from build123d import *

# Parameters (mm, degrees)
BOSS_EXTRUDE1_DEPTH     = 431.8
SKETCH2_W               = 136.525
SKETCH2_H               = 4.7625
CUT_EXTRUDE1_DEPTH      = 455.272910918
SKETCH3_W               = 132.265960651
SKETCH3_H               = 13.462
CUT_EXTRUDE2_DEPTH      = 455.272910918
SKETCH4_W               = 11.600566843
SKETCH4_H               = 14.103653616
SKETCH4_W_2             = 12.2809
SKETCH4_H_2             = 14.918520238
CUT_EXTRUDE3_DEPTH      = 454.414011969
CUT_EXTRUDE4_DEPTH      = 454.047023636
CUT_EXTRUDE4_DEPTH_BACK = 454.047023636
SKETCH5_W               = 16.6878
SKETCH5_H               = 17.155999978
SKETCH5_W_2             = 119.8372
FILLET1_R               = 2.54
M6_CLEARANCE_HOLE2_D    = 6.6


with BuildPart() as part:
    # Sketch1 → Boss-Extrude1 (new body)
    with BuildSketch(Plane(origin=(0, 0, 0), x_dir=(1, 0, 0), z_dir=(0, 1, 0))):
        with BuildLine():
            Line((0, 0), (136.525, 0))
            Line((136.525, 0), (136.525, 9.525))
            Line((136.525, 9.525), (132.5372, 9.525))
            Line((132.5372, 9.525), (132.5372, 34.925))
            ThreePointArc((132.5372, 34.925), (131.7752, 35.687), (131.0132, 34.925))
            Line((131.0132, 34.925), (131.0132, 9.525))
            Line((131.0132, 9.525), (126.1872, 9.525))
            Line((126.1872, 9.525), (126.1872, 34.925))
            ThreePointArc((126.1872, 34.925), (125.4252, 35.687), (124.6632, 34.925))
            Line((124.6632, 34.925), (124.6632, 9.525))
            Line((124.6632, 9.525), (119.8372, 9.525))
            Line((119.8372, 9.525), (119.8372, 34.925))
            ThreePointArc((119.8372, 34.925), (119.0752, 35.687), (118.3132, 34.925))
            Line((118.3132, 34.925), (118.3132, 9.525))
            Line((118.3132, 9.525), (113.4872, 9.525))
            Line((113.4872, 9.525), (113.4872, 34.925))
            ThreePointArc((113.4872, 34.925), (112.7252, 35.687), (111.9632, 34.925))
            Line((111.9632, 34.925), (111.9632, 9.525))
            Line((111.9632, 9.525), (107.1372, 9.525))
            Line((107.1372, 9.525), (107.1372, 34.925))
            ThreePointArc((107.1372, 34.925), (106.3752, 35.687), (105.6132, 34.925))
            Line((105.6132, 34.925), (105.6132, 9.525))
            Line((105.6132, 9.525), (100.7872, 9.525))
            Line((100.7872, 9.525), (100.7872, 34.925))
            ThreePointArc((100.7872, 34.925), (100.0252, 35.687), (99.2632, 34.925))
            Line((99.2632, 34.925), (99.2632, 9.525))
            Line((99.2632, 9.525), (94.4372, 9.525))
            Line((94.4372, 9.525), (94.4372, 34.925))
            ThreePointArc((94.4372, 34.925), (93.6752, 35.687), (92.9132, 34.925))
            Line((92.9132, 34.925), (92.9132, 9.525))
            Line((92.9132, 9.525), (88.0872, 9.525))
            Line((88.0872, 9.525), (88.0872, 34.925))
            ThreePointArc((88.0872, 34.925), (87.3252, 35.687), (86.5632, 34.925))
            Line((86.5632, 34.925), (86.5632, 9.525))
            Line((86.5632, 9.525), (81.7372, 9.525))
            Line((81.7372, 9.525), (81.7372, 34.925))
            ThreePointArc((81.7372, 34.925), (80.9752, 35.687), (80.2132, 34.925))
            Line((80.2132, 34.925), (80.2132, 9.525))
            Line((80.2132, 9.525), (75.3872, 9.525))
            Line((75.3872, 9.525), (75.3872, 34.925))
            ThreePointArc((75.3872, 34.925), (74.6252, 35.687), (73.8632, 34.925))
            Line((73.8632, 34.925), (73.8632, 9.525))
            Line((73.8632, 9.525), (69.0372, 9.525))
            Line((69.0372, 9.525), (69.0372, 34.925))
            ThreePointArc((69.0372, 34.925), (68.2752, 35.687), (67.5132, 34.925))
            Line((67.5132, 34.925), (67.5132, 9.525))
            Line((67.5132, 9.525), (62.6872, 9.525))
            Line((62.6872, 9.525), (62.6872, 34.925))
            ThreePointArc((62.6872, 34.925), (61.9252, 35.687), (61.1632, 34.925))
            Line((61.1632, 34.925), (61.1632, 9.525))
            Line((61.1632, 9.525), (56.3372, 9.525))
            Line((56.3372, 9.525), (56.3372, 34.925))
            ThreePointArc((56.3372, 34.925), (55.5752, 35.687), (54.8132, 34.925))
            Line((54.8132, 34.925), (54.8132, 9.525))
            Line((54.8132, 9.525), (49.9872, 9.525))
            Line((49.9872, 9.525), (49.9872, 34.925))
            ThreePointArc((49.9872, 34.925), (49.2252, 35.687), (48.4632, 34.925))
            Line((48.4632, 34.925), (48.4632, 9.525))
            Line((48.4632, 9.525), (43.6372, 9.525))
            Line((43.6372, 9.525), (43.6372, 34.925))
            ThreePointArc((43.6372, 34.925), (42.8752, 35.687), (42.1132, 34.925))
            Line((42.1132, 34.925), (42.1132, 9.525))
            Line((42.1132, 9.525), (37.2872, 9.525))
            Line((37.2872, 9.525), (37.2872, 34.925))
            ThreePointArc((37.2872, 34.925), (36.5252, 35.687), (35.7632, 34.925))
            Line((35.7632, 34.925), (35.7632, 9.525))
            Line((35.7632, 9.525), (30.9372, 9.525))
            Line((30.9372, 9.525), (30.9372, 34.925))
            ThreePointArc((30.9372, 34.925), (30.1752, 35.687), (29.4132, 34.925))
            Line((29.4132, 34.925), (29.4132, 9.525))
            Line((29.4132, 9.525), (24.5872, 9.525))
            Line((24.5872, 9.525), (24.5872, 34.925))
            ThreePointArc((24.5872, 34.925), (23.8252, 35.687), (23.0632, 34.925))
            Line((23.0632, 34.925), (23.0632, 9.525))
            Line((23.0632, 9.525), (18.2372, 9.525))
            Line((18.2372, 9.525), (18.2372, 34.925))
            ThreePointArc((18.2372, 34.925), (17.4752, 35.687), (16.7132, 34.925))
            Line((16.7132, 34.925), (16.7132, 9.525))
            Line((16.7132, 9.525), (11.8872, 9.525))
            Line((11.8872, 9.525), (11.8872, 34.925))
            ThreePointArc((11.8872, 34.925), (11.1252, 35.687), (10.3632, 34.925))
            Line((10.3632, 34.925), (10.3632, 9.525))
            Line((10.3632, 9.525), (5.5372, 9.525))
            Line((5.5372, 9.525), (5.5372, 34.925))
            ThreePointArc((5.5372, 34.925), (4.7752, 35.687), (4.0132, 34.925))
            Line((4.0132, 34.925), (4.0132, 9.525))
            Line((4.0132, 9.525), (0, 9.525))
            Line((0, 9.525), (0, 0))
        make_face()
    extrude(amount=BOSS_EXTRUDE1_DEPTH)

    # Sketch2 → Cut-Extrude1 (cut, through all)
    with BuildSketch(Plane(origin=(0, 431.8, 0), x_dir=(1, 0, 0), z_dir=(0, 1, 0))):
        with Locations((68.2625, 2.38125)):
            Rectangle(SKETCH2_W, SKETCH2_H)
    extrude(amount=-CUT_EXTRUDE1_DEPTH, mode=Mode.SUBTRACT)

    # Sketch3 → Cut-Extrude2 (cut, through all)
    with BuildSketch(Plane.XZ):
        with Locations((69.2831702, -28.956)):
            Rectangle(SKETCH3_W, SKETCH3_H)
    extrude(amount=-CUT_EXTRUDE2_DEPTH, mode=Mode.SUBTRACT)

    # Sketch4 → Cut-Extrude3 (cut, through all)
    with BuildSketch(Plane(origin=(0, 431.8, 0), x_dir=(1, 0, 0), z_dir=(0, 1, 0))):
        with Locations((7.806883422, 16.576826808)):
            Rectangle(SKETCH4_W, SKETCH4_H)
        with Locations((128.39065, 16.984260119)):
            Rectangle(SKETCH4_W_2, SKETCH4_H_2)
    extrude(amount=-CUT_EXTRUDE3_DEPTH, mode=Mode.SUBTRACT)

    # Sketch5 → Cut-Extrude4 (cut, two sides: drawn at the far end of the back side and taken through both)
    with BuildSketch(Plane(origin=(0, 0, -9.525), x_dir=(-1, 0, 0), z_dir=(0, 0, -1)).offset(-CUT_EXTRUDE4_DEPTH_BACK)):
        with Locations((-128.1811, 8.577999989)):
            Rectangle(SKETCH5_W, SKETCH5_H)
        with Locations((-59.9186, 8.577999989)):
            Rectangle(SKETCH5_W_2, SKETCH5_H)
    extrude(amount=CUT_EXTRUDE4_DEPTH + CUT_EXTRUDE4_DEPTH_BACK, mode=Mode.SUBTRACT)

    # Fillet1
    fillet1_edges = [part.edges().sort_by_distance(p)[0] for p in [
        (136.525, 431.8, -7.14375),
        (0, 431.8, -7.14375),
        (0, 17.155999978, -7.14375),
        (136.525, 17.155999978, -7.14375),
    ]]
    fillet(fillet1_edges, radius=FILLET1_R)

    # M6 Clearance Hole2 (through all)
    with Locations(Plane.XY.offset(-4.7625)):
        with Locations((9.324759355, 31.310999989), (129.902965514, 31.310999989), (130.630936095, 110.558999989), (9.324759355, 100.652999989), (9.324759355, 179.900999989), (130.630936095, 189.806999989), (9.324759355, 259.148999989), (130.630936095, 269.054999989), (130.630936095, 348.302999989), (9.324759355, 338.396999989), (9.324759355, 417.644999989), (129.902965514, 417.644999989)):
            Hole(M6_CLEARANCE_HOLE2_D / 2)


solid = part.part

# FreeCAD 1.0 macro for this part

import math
import FreeCAD as App
import Part
import Sketcher

V = App.Vector
Q = App.Units.Quantity


def edges_at(feature, points):
    """Names of the edges that pass closest to the given points."""
    edges = feature.Shape.Edges
    near = lambda p: min(range(len(edges)), key=lambda i: edges[i].distToShape(Part.Vertex(*p))[0])
    return sorted({f"Edge{near(p) + 1}" for p in points})

doc = App.newDocument("Part")
params = doc.addObject("Spreadsheet::Sheet", "Params")
for row, (alias, value) in enumerate([
    ("sketch1_height", "1 in"),
    ("sketch1_radius", "0.03 in"),
    ("sketch1_width", "0.19 in"),
    ("sketch1_width2", "5.375 in"),
    ("sketch1_width3", "0.157 in"),
    ("pad1_length", "17 in"),
    ("sketch2_width", "5.375 in"),
    ("sketch2_height", "0.1875 in"),
    ("sketch3_height", "0.53 in"),
    ("sketch5_width", "5.375 in"),
    ("fillet_radius", "0.1 in"),
    ("hole_diameter", "6.6 mm"),
], start=1):
    params.set(f"A{row}", alias)
    params.set(f"B{row}", "=" + value)
    params.setAlias(f"B{row}", alias)

body = doc.addObject("PartDesign::Body", "Body")

# Sketch on XZ plane
sketch1 = body.newObject("Sketcher::SketchObject", "Sketch")
sketch1.AttachmentSupport = (doc.getObject("XZ_Plane"), [""])
sketch1.MapMode = "FlatFace"
sketch1.addGeometry(Part.LineSegment(V(0, 0, 0), V(136.5, 0, 0)), False)
sketch1.addGeometry(Part.LineSegment(V(136.5, 0, 0), V(136.5, -9.5, 0)), False)
sketch1.addGeometry(Part.LineSegment(V(136.5, -9.5, 0), V(132.5, -9.5, 0)), False)
sketch1.addGeometry(Part.LineSegment(V(132.5, -9.5, 0), V(132.5, -34.9, 0)), False)
sketch1.addGeometry(Part.ArcOfCircle(Part.Circle(V(131.8, -34.9, 0), V(0, 0, 1), 0.8), math.radians(180), math.radians(360)), False)
sketch1.addGeometry(Part.LineSegment(V(131, -34.9, 0), V(131, -9.5, 0)), False)
sketch1.addGeometry(Part.LineSegment(V(131, -9.5, 0), V(126.2, -9.5, 0)), False)
sketch1.addGeometry(Part.LineSegment(V(126.2, -9.5, 0), V(126.2, -34.9, 0)), False)
sketch1.addGeometry(Part.ArcOfCircle(Part.Circle(V(125.4, -34.9, 0), V(0, 0, 1), 0.8), math.radians(180), math.radians(360)), False)
sketch1.addGeometry(Part.LineSegment(V(124.7, -34.9, 0), V(124.7, -9.5, 0)), False)
sketch1.addGeometry(Part.LineSegment(V(124.7, -9.5, 0), V(119.8, -9.5, 0)), False)
sketch1.addGeometry(Part.LineSegment(V(119.8, -9.5, 0), V(119.8, -34.9, 0)), False)
sketch1.addGeometry(Part.ArcOfCircle(Part.Circle(V(119.1, -34.9, 0), V(0, 0, 1), 0.8), math.radians(180), math.radians(360)), False)
sketch1.addGeometry(Part.LineSegment(V(118.3, -34.9, 0), V(118.3, -9.5, 0)), False)
sketch1.addGeometry(Part.LineSegment(V(118.3, -9.5, 0), V(113.5, -9.5, 0)), False)
sketch1.addGeometry(Part.LineSegment(V(113.5, -9.5, 0), V(113.5, -34.9, 0)), False)
sketch1.addGeometry(Part.ArcOfCircle(Part.Circle(V(112.7, -34.9, 0), V(0, 0, 1), 0.8), math.radians(180), math.radians(360)), False)
sketch1.addGeometry(Part.LineSegment(V(112, -34.9, 0), V(112, -9.5, 0)), False)
sketch1.addGeometry(Part.LineSegment(V(112, -9.5, 0), V(107.1, -9.5, 0)), False)
sketch1.addGeometry(Part.LineSegment(V(107.1, -9.5, 0), V(107.1, -34.9, 0)), False)
sketch1.addGeometry(Part.ArcOfCircle(Part.Circle(V(106.4, -34.9, 0), V(0, 0, 1), 0.8), math.radians(180), math.radians(360)), False)
sketch1.addGeometry(Part.LineSegment(V(105.6, -34.9, 0), V(105.6, -9.5, 0)), False)
sketch1.addGeometry(Part.LineSegment(V(105.6, -9.5, 0), V(100.8, -9.5, 0)), False)
sketch1.addGeometry(Part.LineSegment(V(100.8, -9.5, 0), V(100.8, -34.9, 0)), False)
sketch1.addGeometry(Part.ArcOfCircle(Part.Circle(V(100, -34.9, 0), V(0, 0, 1), 0.8), math.radians(180), math.radians(360)), False)
sketch1.addGeometry(Part.LineSegment(V(99.3, -34.9, 0), V(99.3, -9.5, 0)), False)
sketch1.addGeometry(Part.LineSegment(V(99.3, -9.5, 0), V(94.4, -9.5, 0)), False)
sketch1.addGeometry(Part.LineSegment(V(94.4, -9.5, 0), V(94.4, -34.9, 0)), False)
sketch1.addGeometry(Part.ArcOfCircle(Part.Circle(V(93.7, -34.9, 0), V(0, 0, 1), 0.8), math.radians(180), math.radians(360)), False)
sketch1.addGeometry(Part.LineSegment(V(92.9, -34.9, 0), V(92.9, -9.5, 0)), False)
sketch1.addGeometry(Part.LineSegment(V(92.9, -9.5, 0), V(88.1, -9.5, 0)), False)
sketch1.addGeometry(Part.LineSegment(V(88.1, -9.5, 0), V(88.1, -34.9, 0)), False)
sketch1.addGeometry(Part.ArcOfCircle(Part.Circle(V(87.3, -34.9, 0), V(0, 0, 1), 0.8), math.radians(180), math.radians(360)), False)
sketch1.addGeometry(Part.LineSegment(V(86.6, -34.9, 0), V(86.6, -9.5, 0)), False)
sketch1.addGeometry(Part.LineSegment(V(86.6, -9.5, 0), V(81.7, -9.5, 0)), False)
sketch1.addGeometry(Part.LineSegment(V(81.7, -9.5, 0), V(81.7, -34.9, 0)), False)
sketch1.addGeometry(Part.ArcOfCircle(Part.Circle(V(81, -34.9, 0), V(0, 0, 1), 0.8), math.radians(180), math.radians(360)), False)
sketch1.addGeometry(Part.LineSegment(V(80.2, -34.9, 0), V(80.2, -9.5, 0)), False)
sketch1.addGeometry(Part.LineSegment(V(80.2, -9.5, 0), V(75.4, -9.5, 0)), False)
sketch1.addGeometry(Part.LineSegment(V(75.4, -9.5, 0), V(75.4, -34.9, 0)), False)
sketch1.addGeometry(Part.ArcOfCircle(Part.Circle(V(74.6, -34.9, 0), V(0, 0, 1), 0.8), math.radians(180), math.radians(360)), False)
sketch1.addGeometry(Part.LineSegment(V(73.9, -34.9, 0), V(73.9, -9.5, 0)), False)
sketch1.addGeometry(Part.LineSegment(V(73.9, -9.5, 0), V(69, -9.5, 0)), False)
sketch1.addGeometry(Part.LineSegment(V(69, -9.5, 0), V(69, -34.9, 0)), False)
sketch1.addGeometry(Part.ArcOfCircle(Part.Circle(V(68.3, -34.9, 0), V(0, 0, 1), 0.8), math.radians(180), math.radians(360)), False)
sketch1.addGeometry(Part.LineSegment(V(67.5, -34.9, 0), V(67.5, -9.5, 0)), False)
sketch1.addGeometry(Part.LineSegment(V(67.5, -9.5, 0), V(62.7, -9.5, 0)), False)
sketch1.addGeometry(Part.LineSegment(V(62.7, -9.5, 0), V(62.7, -34.9, 0)), False)
sketch1.addGeometry(Part.ArcOfCircle(Part.Circle(V(61.9, -34.9, 0), V(0, 0, 1), 0.8), math.radians(180), math.radians(360)), False)
sketch1.addGeometry(Part.LineSegment(V(61.2, -34.9, 0), V(61.2, -9.5, 0)), False)
sketch1.addGeometry(Part.LineSegment(V(61.2, -9.5, 0), V(56.3, -9.5, 0)), False)
sketch1.addGeometry(Part.LineSegment(V(56.3, -9.5, 0), V(56.3, -34.9, 0)), False)
sketch1.addGeometry(Part.ArcOfCircle(Part.Circle(V(55.6, -34.9, 0), V(0, 0, 1), 0.8), math.radians(180), math.radians(360)), False)
sketch1.addGeometry(Part.LineSegment(V(54.8, -34.9, 0), V(54.8, -9.5, 0)), False)
sketch1.addGeometry(Part.LineSegment(V(54.8, -9.5, 0), V(50, -9.5, 0)), False)
sketch1.addGeometry(Part.LineSegment(V(50, -9.5, 0), V(50, -34.9, 0)), False)
sketch1.addGeometry(Part.ArcOfCircle(Part.Circle(V(49.2, -34.9, 0), V(0, 0, 1), 0.8), math.radians(180), math.radians(360)), False)
sketch1.addGeometry(Part.LineSegment(V(48.5, -34.9, 0), V(48.5, -9.5, 0)), False)
sketch1.addGeometry(Part.LineSegment(V(48.5, -9.5, 0), V(43.6, -9.5, 0)), False)
sketch1.addGeometry(Part.LineSegment(V(43.6, -9.5, 0), V(43.6, -34.9, 0)), False)
sketch1.addGeometry(Part.ArcOfCircle(Part.Circle(V(42.9, -34.9, 0), V(0, 0, 1), 0.8), math.radians(180), math.radians(360)), False)
sketch1.addGeometry(Part.LineSegment(V(42.1, -34.9, 0), V(42.1, -9.5, 0)), False)
sketch1.addGeometry(Part.LineSegment(V(42.1, -9.5, 0), V(37.3, -9.5, 0)), False)
sketch1.addGeometry(Part.LineSegment(V(37.3, -9.5, 0), V(37.3, -34.9, 0)), False)
sketch1.addGeometry(Part.ArcOfCircle(Part.Circle(V(36.5, -34.9, 0), V(0, 0, 1), 0.8), math.radians(180), math.radians(360)), False)
sketch1.addGeometry(Part.LineSegment(V(35.8, -34.9, 0), V(35.8, -9.5, 0)), False)
sketch1.addGeometry(Part.LineSegment(V(35.8, -9.5, 0), V(30.9, -9.5, 0)), False)
sketch1.addGeometry(Part.LineSegment(V(30.9, -9.5, 0), V(30.9, -34.9, 0)), False)
sketch1.addGeometry(Part.ArcOfCircle(Part.Circle(V(30.2, -34.9, 0), V(0, 0, 1), 0.8), math.radians(180), math.radians(360)), False)
sketch1.addGeometry(Part.LineSegment(V(29.4, -34.9, 0), V(29.4, -9.5, 0)), False)
sketch1.addGeometry(Part.LineSegment(V(29.4, -9.5, 0), V(24.6, -9.5, 0)), False)
sketch1.addGeometry(Part.LineSegment(V(24.6, -9.5, 0), V(24.6, -34.9, 0)), False)
sketch1.addGeometry(Part.ArcOfCircle(Part.Circle(V(23.8, -34.9, 0), V(0, 0, 1), 0.8), math.radians(180), math.radians(360)), False)
sketch1.addGeometry(Part.LineSegment(V(23.1, -34.9, 0), V(23.1, -9.5, 0)), False)
sketch1.addGeometry(Part.LineSegment(V(23.1, -9.5, 0), V(18.2, -9.5, 0)), False)
sketch1.addGeometry(Part.LineSegment(V(18.2, -9.5, 0), V(18.2, -34.9, 0)), False)
sketch1.addGeometry(Part.ArcOfCircle(Part.Circle(V(17.5, -34.9, 0), V(0, 0, 1), 0.8), math.radians(180), math.radians(360)), False)
sketch1.addGeometry(Part.LineSegment(V(16.7, -34.9, 0), V(16.7, -9.5, 0)), False)
sketch1.addGeometry(Part.LineSegment(V(16.7, -9.5, 0), V(11.9, -9.5, 0)), False)
sketch1.addGeometry(Part.LineSegment(V(11.9, -9.5, 0), V(11.9, -34.9, 0)), False)
sketch1.addGeometry(Part.ArcOfCircle(Part.Circle(V(11.1, -34.9, 0), V(0, 0, 1), 0.8), math.radians(180), math.radians(360)), False)
sketch1.addGeometry(Part.LineSegment(V(10.4, -34.9, 0), V(10.4, -9.5, 0)), False)
sketch1.addGeometry(Part.LineSegment(V(10.4, -9.5, 0), V(5.5, -9.5, 0)), False)
sketch1.addGeometry(Part.LineSegment(V(5.5, -9.5, 0), V(5.5, -34.9, 0)), False)
sketch1.addGeometry(Part.ArcOfCircle(Part.Circle(V(4.8, -34.9, 0), V(0, 0, 1), 0.8), math.radians(180), math.radians(360)), False)
sketch1.addGeometry(Part.LineSegment(V(4, -34.9, 0), V(4, -9.5, 0)), False)
sketch1.addGeometry(Part.LineSegment(V(4, -9.5, 0), V(0, -9.5, 0)), False)
sketch1.addGeometry(Part.LineSegment(V(0, -9.5, 0), V(0, 0, 0)), False)
sketch1.addConstraint(Sketcher.Constraint("Coincident", 0, 2, 1, 1))
sketch1.addConstraint(Sketcher.Constraint("Coincident", 1, 2, 2, 1))
sketch1.addConstraint(Sketcher.Constraint("Coincident", 2, 2, 3, 1))
sketch1.addConstraint(Sketcher.Constraint("Tangent", 3, 2, 4, 2))
sketch1.addConstraint(Sketcher.Constraint("Tangent", 4, 1, 5, 1))
sketch1.addConstraint(Sketcher.Constraint("Coincident", 5, 2, 6, 1))
sketch1.addConstraint(Sketcher.Constraint("Coincident", 6, 2, 7, 1))
sketch1.addConstraint(Sketcher.Constraint("Tangent", 7, 2, 8, 2))
sketch1.addConstraint(Sketcher.Constraint("Tangent", 8, 1, 9, 1))
sketch1.addConstraint(Sketcher.Constraint("Coincident", 9, 2, 10, 1))
sketch1.addConstraint(Sketcher.Constraint("Coincident", 10, 2, 11, 1))
sketch1.addConstraint(Sketcher.Constraint("Tangent", 11, 2, 12, 2))
sketch1.addConstraint(Sketcher.Constraint("Tangent", 12, 1, 13, 1))
sketch1.addConstraint(Sketcher.Constraint("Coincident", 13, 2, 14, 1))
sketch1.addConstraint(Sketcher.Constraint("Coincident", 14, 2, 15, 1))
sketch1.addConstraint(Sketcher.Constraint("Tangent", 15, 2, 16, 2))
sketch1.addConstraint(Sketcher.Constraint("Tangent", 16, 1, 17, 1))
sketch1.addConstraint(Sketcher.Constraint("Coincident", 17, 2, 18, 1))
sketch1.addConstraint(Sketcher.Constraint("Coincident", 18, 2, 19, 1))
sketch1.addConstraint(Sketcher.Constraint("Tangent", 19, 2, 20, 2))
sketch1.addConstraint(Sketcher.Constraint("Tangent", 20, 1, 21, 1))
sketch1.addConstraint(Sketcher.Constraint("Coincident", 21, 2, 22, 1))
sketch1.addConstraint(Sketcher.Constraint("Coincident", 22, 2, 23, 1))
sketch1.addConstraint(Sketcher.Constraint("Tangent", 23, 2, 24, 2))
sketch1.addConstraint(Sketcher.Constraint("Tangent", 24, 1, 25, 1))
sketch1.addConstraint(Sketcher.Constraint("Coincident", 25, 2, 26, 1))
sketch1.addConstraint(Sketcher.Constraint("Coincident", 26, 2, 27, 1))
sketch1.addConstraint(Sketcher.Constraint("Tangent", 27, 2, 28, 2))
sketch1.addConstraint(Sketcher.Constraint("Tangent", 28, 1, 29, 1))
sketch1.addConstraint(Sketcher.Constraint("Coincident", 29, 2, 30, 1))
sketch1.addConstraint(Sketcher.Constraint("Coincident", 30, 2, 31, 1))
sketch1.addConstraint(Sketcher.Constraint("Tangent", 31, 2, 32, 2))
sketch1.addConstraint(Sketcher.Constraint("Tangent", 32, 1, 33, 1))
sketch1.addConstraint(Sketcher.Constraint("Coincident", 33, 2, 34, 1))
sketch1.addConstraint(Sketcher.Constraint("Coincident", 34, 2, 35, 1))
sketch1.addConstraint(Sketcher.Constraint("Tangent", 35, 2, 36, 2))
sketch1.addConstraint(Sketcher.Constraint("Tangent", 36, 1, 37, 1))
sketch1.addConstraint(Sketcher.Constraint("Coincident", 37, 2, 38, 1))
sketch1.addConstraint(Sketcher.Constraint("Coincident", 38, 2, 39, 1))
sketch1.addConstraint(Sketcher.Constraint("Tangent", 39, 2, 40, 2))
sketch1.addConstraint(Sketcher.Constraint("Tangent", 40, 1, 41, 1))
sketch1.addConstraint(Sketcher.Constraint("Coincident", 41, 2, 42, 1))
sketch1.addConstraint(Sketcher.Constraint("Coincident", 42, 2, 43, 1))
sketch1.addConstraint(Sketcher.Constraint("Tangent", 43, 2, 44, 2))
sketch1.addConstraint(Sketcher.Constraint("Tangent", 44, 1, 45, 1))
sketch1.addConstraint(Sketcher.Constraint("Coincident", 45, 2, 46, 1))
sketch1.addConstraint(Sketcher.Constraint("Coincident", 46, 2, 47, 1))
sketch1.addConstraint(Sketcher.Constraint("Tangent", 47, 2, 48, 2))
sketch1.addConstraint(Sketcher.Constraint("Tangent", 48, 1, 49, 1))
sketch1.addConstraint(Sketcher.Constraint("Coincident", 49, 2, 50, 1))
sketch1.addConstraint(Sketcher.Constraint("Coincident", 50, 2, 51, 1))
sketch1.addConstraint(Sketcher.Constraint("Tangent", 51, 2, 52, 2))
sketch1.addConstraint(Sketcher.Constraint("Tangent", 52, 1, 53, 1))
sketch1.addConstraint(Sketcher.Constraint("Coincident", 53, 2, 54, 1))
sketch1.addConstraint(Sketcher.Constraint("Coincident", 54, 2, 55, 1))
sketch1.addConstraint(Sketcher.Constraint("Tangent", 55, 2, 56, 2))
sketch1.addConstraint(Sketcher.Constraint("Tangent", 56, 1, 57, 1))
sketch1.addConstraint(Sketcher.Constraint("Coincident", 57, 2, 58, 1))
sketch1.addConstraint(Sketcher.Constraint("Coincident", 58, 2, 59, 1))
sketch1.addConstraint(Sketcher.Constraint("Tangent", 59, 2, 60, 2))
sketch1.addConstraint(Sketcher.Constraint("Tangent", 60, 1, 61, 1))
sketch1.addConstraint(Sketcher.Constraint("Coincident", 61, 2, 62, 1))
sketch1.addConstraint(Sketcher.Constraint("Coincident", 62, 2, 63, 1))
sketch1.addConstraint(Sketcher.Constraint("Tangent", 63, 2, 64, 2))
sketch1.addConstraint(Sketcher.Constraint("Tangent", 64, 1, 65, 1))
sketch1.addConstraint(Sketcher.Constraint("Coincident", 65, 2, 66, 1))
sketch1.addConstraint(Sketcher.Constraint("Coincident", 66, 2, 67, 1))
sketch1.addConstraint(Sketcher.Constraint("Tangent", 67, 2, 68, 2))
sketch1.addConstraint(Sketcher.Constraint("Tangent", 68, 1, 69, 1))
sketch1.addConstraint(Sketcher.Constraint("Coincident", 69, 2, 70, 1))
sketch1.addConstraint(Sketcher.Constraint("Coincident", 70, 2, 71, 1))
sketch1.addConstraint(Sketcher.Constraint("Tangent", 71, 2, 72, 2))
sketch1.addConstraint(Sketcher.Constraint("Tangent", 72, 1, 73, 1))
sketch1.addConstraint(Sketcher.Constraint("Coincident", 73, 2, 74, 1))
sketch1.addConstraint(Sketcher.Constraint("Coincident", 74, 2, 75, 1))
sketch1.addConstraint(Sketcher.Constraint("Tangent", 75, 2, 76, 2))
sketch1.addConstraint(Sketcher.Constraint("Tangent", 76, 1, 77, 1))
sketch1.addConstraint(Sketcher.Constraint("Coincident", 77, 2, 78, 1))
sketch1.addConstraint(Sketcher.Constraint("Coincident", 78, 2, 79, 1))
sketch1.addConstraint(Sketcher.Constraint("Tangent", 79, 2, 80, 2))
sketch1.addConstraint(Sketcher.Constraint("Tangent", 80, 1, 81, 1))
sketch1.addConstraint(Sketcher.Constraint("Coincident", 81, 2, 82, 1))
sketch1.addConstraint(Sketcher.Constraint("Coincident", 82, 2, 83, 1))
sketch1.addConstraint(Sketcher.Constraint("Tangent", 83, 2, 84, 2))
sketch1.addConstraint(Sketcher.Constraint("Tangent", 84, 1, 85, 1))
sketch1.addConstraint(Sketcher.Constraint("Coincident", 85, 2, 86, 1))
sketch1.addConstraint(Sketcher.Constraint("Coincident", 86, 2, 87, 1))
sketch1.addConstraint(Sketcher.Constraint("Coincident", 87, 2, 0, 1))
sketch1.addConstraint(Sketcher.Constraint("Horizontal", 0))
sketch1.addConstraint(Sketcher.Constraint("Vertical", 1))
sketch1.addConstraint(Sketcher.Constraint("Horizontal", 2))
sketch1.addConstraint(Sketcher.Constraint("Vertical", 3))
sketch1.addConstraint(Sketcher.Constraint("Vertical", 5))
sketch1.addConstraint(Sketcher.Constraint("Horizontal", 6))
sketch1.addConstraint(Sketcher.Constraint("Vertical", 7))
sketch1.addConstraint(Sketcher.Constraint("Vertical", 9))
sketch1.addConstraint(Sketcher.Constraint("Horizontal", 10))
sketch1.addConstraint(Sketcher.Constraint("Vertical", 11))
sketch1.addConstraint(Sketcher.Constraint("Vertical", 13))
sketch1.addConstraint(Sketcher.Constraint("Horizontal", 14))
sketch1.addConstraint(Sketcher.Constraint("Vertical", 15))
sketch1.addConstraint(Sketcher.Constraint("Vertical", 17))
sketch1.addConstraint(Sketcher.Constraint("Horizontal", 18))
sketch1.addConstraint(Sketcher.Constraint("Vertical", 19))
sketch1.addConstraint(Sketcher.Constraint("Vertical", 21))
sketch1.addConstraint(Sketcher.Constraint("Horizontal", 22))
sketch1.addConstraint(Sketcher.Constraint("Vertical", 23))
sketch1.addConstraint(Sketcher.Constraint("Vertical", 25))
sketch1.addConstraint(Sketcher.Constraint("Horizontal", 26))
sketch1.addConstraint(Sketcher.Constraint("Vertical", 27))
sketch1.addConstraint(Sketcher.Constraint("Vertical", 29))
sketch1.addConstraint(Sketcher.Constraint("Horizontal", 30))
sketch1.addConstraint(Sketcher.Constraint("Vertical", 31))
sketch1.addConstraint(Sketcher.Constraint("Vertical", 33))
sketch1.addConstraint(Sketcher.Constraint("Horizontal", 34))
sketch1.addConstraint(Sketcher.Constraint("Vertical", 35))
sketch1.addConstraint(Sketcher.Constraint("Vertical", 37))
sketch1.addConstraint(Sketcher.Constraint("Horizontal", 38))
sketch1.addConstraint(Sketcher.Constraint("Vertical", 39))
sketch1.addConstraint(Sketcher.Constraint("Vertical", 41))
sketch1.addConstraint(Sketcher.Constraint("Horizontal", 42))
sketch1.addConstraint(Sketcher.Constraint("Vertical", 43))
sketch1.addConstraint(Sketcher.Constraint("Vertical", 45))
sketch1.addConstraint(Sketcher.Constraint("Horizontal", 46))
sketch1.addConstraint(Sketcher.Constraint("Vertical", 47))
sketch1.addConstraint(Sketcher.Constraint("Vertical", 49))
sketch1.addConstraint(Sketcher.Constraint("Horizontal", 50))
sketch1.addConstraint(Sketcher.Constraint("Vertical", 51))
sketch1.addConstraint(Sketcher.Constraint("Vertical", 53))
sketch1.addConstraint(Sketcher.Constraint("Horizontal", 54))
sketch1.addConstraint(Sketcher.Constraint("Vertical", 55))
sketch1.addConstraint(Sketcher.Constraint("Vertical", 57))
sketch1.addConstraint(Sketcher.Constraint("Horizontal", 58))
sketch1.addConstraint(Sketcher.Constraint("Vertical", 59))
sketch1.addConstraint(Sketcher.Constraint("Vertical", 61))
sketch1.addConstraint(Sketcher.Constraint("Horizontal", 62))
sketch1.addConstraint(Sketcher.Constraint("Vertical", 63))
sketch1.addConstraint(Sketcher.Constraint("Vertical", 65))
sketch1.addConstraint(Sketcher.Constraint("Horizontal", 66))
sketch1.addConstraint(Sketcher.Constraint("Vertical", 67))
sketch1.addConstraint(Sketcher.Constraint("Vertical", 69))
sketch1.addConstraint(Sketcher.Constraint("Horizontal", 70))
sketch1.addConstraint(Sketcher.Constraint("Vertical", 71))
sketch1.addConstraint(Sketcher.Constraint("Vertical", 73))
sketch1.addConstraint(Sketcher.Constraint("Horizontal", 74))
sketch1.addConstraint(Sketcher.Constraint("Vertical", 75))
sketch1.addConstraint(Sketcher.Constraint("Vertical", 77))
sketch1.addConstraint(Sketcher.Constraint("Horizontal", 78))
sketch1.addConstraint(Sketcher.Constraint("Vertical", 79))
sketch1.addConstraint(Sketcher.Constraint("Vertical", 81))
sketch1.addConstraint(Sketcher.Constraint("Horizontal", 82))
sketch1.addConstraint(Sketcher.Constraint("Vertical", 83))
sketch1.addConstraint(Sketcher.Constraint("Vertical", 85))
sketch1.addConstraint(Sketcher.Constraint("Horizontal", 86))
sketch1.addConstraint(Sketcher.Constraint("Vertical", 87))
sketch1.addConstraint(Sketcher.Constraint("Coincident", 87, 2, -1, 1))
sketch1.addConstraint(Sketcher.Constraint("Equal", 4, 8))
sketch1.addConstraint(Sketcher.Constraint("Equal", 8, 12))
sketch1.addConstraint(Sketcher.Constraint("Equal", 12, 16))
sketch1.addConstraint(Sketcher.Constraint("Equal", 16, 20))
sketch1.addConstraint(Sketcher.Constraint("Equal", 20, 24))
sketch1.addConstraint(Sketcher.Constraint("Equal", 24, 28))
sketch1.addConstraint(Sketcher.Constraint("Equal", 28, 32))
sketch1.addConstraint(Sketcher.Constraint("Equal", 32, 36))
sketch1.addConstraint(Sketcher.Constraint("Equal", 36, 40))
sketch1.addConstraint(Sketcher.Constraint("Equal", 40, 44))
sketch1.addConstraint(Sketcher.Constraint("Equal", 44, 48))
sketch1.addConstraint(Sketcher.Constraint("Equal", 48, 52))
sketch1.addConstraint(Sketcher.Constraint("Equal", 52, 56))
sketch1.addConstraint(Sketcher.Constraint("Equal", 56, 60))
sketch1.addConstraint(Sketcher.Constraint("Equal", 60, 64))
sketch1.addConstraint(Sketcher.Constraint("Equal", 64, 68))
sketch1.addConstraint(Sketcher.Constraint("Equal", 68, 72))
sketch1.addConstraint(Sketcher.Constraint("Equal", 72, 76))
sketch1.addConstraint(Sketcher.Constraint("Equal", 76, 80))
sketch1.addConstraint(Sketcher.Constraint("Equal", 80, 84))
sketch1.addConstraint(Sketcher.Constraint("Horizontal", 4, 3, 8, 3))
sketch1.addConstraint(Sketcher.Constraint("Horizontal", 8, 3, 12, 3))
sketch1.addConstraint(Sketcher.Constraint("Horizontal", 12, 3, 16, 3))
sketch1.addConstraint(Sketcher.Constraint("Horizontal", 16, 3, 20, 3))
sketch1.addConstraint(Sketcher.Constraint("Horizontal", 20, 3, 24, 3))
sketch1.addConstraint(Sketcher.Constraint("Horizontal", 24, 3, 28, 3))
sketch1.addConstraint(Sketcher.Constraint("Horizontal", 28, 3, 32, 3))
sketch1.addConstraint(Sketcher.Constraint("Horizontal", 32, 3, 36, 3))
sketch1.addConstraint(Sketcher.Constraint("Horizontal", 36, 3, 40, 3))
sketch1.addConstraint(Sketcher.Constraint("Horizontal", 40, 3, 44, 3))
sketch1.addConstraint(Sketcher.Constraint("Horizontal", 44, 3, 48, 3))
sketch1.addConstraint(Sketcher.Constraint("Horizontal", 48, 3, 52, 3))
sketch1.addConstraint(Sketcher.Constraint("Horizontal", 52, 3, 56, 3))
sketch1.addConstraint(Sketcher.Constraint("Horizontal", 56, 3, 60, 3))
sketch1.addConstraint(Sketcher.Constraint("Horizontal", 60, 3, 64, 3))
sketch1.addConstraint(Sketcher.Constraint("Horizontal", 64, 3, 68, 3))
sketch1.addConstraint(Sketcher.Constraint("Horizontal", 68, 3, 72, 3))
sketch1.addConstraint(Sketcher.Constraint("Horizontal", 72, 3, 76, 3))
sketch1.addConstraint(Sketcher.Constraint("Horizontal", 76, 3, 80, 3))
sketch1.addConstraint(Sketcher.Constraint("Horizontal", 80, 3, 84, 3))
sketch1.addConstraint(Sketcher.Constraint("Horizontal", 2, 2, 5, 2))
sketch1.addConstraint(Sketcher.Constraint("Horizontal", 6, 2, 9, 2))
sketch1.addConstraint(Sketcher.Constraint("Horizontal", 10, 2, 13, 2))
sketch1.addConstraint(Sketcher.Constraint("Horizontal", 14, 2, 17, 2))
sketch1.addConstraint(Sketcher.Constraint("Horizontal", 18, 2, 21, 2))
sketch1.addConstraint(Sketcher.Constraint("Horizontal", 22, 2, 25, 2))
sketch1.addConstraint(Sketcher.Constraint("Horizontal", 26, 2, 29, 2))
sketch1.addConstraint(Sketcher.Constraint("Horizontal", 30, 2, 33, 2))
sketch1.addConstraint(Sketcher.Constraint("Horizontal", 34, 2, 37, 2))
sketch1.addConstraint(Sketcher.Constraint("Horizontal", 38, 2, 41, 2))
sketch1.addConstraint(Sketcher.Constraint("Horizontal", 42, 2, 45, 2))
sketch1.addConstraint(Sketcher.Constraint("Horizontal", 46, 2, 49, 2))
sketch1.addConstraint(Sketcher.Constraint("Horizontal", 50, 2, 53, 2))
sketch1.addConstraint(Sketcher.Constraint("Horizontal", 54, 2, 57, 2))
sketch1.addConstraint(Sketcher.Constraint("Horizontal", 58, 2, 61, 2))
sketch1.addConstraint(Sketcher.Constraint("Horizontal", 62, 2, 65, 2))
sketch1.addConstraint(Sketcher.Constraint("Horizontal", 66, 2, 69, 2))
sketch1.addConstraint(Sketcher.Constraint("Horizontal", 70, 2, 73, 2))
sketch1.addConstraint(Sketcher.Constraint("Horizontal", 74, 2, 77, 2))
sketch1.addConstraint(Sketcher.Constraint("Horizontal", 78, 2, 81, 2))
sketch1.addConstraint(Sketcher.Constraint("Horizontal", 82, 2, 85, 2))
sketch1.addConstraint(Sketcher.Constraint("Equal", 6, 10))
sketch1.addConstraint(Sketcher.Constraint("Equal", 10, 14))
sketch1.addConstraint(Sketcher.Constraint("Equal", 14, 18))
sketch1.addConstraint(Sketcher.Constraint("Equal", 18, 22))
sketch1.addConstraint(Sketcher.Constraint("Equal", 22, 26))
sketch1.addConstraint(Sketcher.Constraint("Equal", 26, 30))
sketch1.addConstraint(Sketcher.Constraint("Equal", 30, 34))
sketch1.addConstraint(Sketcher.Constraint("Equal", 34, 38))
sketch1.addConstraint(Sketcher.Constraint("Equal", 38, 42))
sketch1.addConstraint(Sketcher.Constraint("Equal", 42, 46))
sketch1.addConstraint(Sketcher.Constraint("Equal", 46, 50))
sketch1.addConstraint(Sketcher.Constraint("Equal", 50, 54))
sketch1.addConstraint(Sketcher.Constraint("Equal", 54, 58))
sketch1.addConstraint(Sketcher.Constraint("Equal", 58, 62))
sketch1.addConstraint(Sketcher.Constraint("Equal", 62, 66))
sketch1.addConstraint(Sketcher.Constraint("Equal", 66, 70))
sketch1.addConstraint(Sketcher.Constraint("Equal", 70, 74))
sketch1.addConstraint(Sketcher.Constraint("Equal", 74, 78))
sketch1.addConstraint(Sketcher.Constraint("Equal", 78, 82))
sketch1.addConstraint(Sketcher.Constraint("DistanceY", 3, 2, 3, 1, Q("1 in")))
sketch1.addConstraint(Sketcher.Constraint("Radius", 4, Q("0.03 in")))
sketch1.addConstraint(Sketcher.Constraint("DistanceX", 6, 2, 6, 1, Q("0.19 in")))
sketch1.addConstraint(Sketcher.Constraint("DistanceX", 0, 1, 0, 2, Q("5.375 in")))
sketch1.addConstraint(Sketcher.Constraint("DistanceX", 2, 2, 2, 1, Q("0.157 in")))
sketch1.addConstraint(Sketcher.Constraint("DistanceY", 1, 2, 1, 1, Q("0.375 in")))
sketch1.setExpression("Constraints[236]", "Params.sketch1_height")
sketch1.setExpression("Constraints[237]", "Params.sketch1_radius")
sketch1.setExpression("Constraints[238]", "Params.sketch1_width")
sketch1.setExpression("Constraints[239]", "Params.sketch1_width2")
sketch1.setExpression("Constraints[240]", "Params.sketch1_width3")
pad1 = body.newObject("PartDesign::Pad", "Pad")
pad1.Profile = sketch1
pad1.setExpression("Length", "Params.pad1_length")
pad1.Reversed = True

# Sketch on XZ plane
sketch2 = body.newObject("Sketcher::SketchObject", "Sketch001")
sketch2.AttachmentSupport = (doc.getObject("XZ_Plane"), [""])
sketch2.MapMode = "FlatFace"
sketch2.AttachmentOffset = App.Placement(V(0, 0, -17 * 25.4), App.Rotation())
sketch2.addGeometry(Part.LineSegment(V(0, -4.8, 0), V(0, 0, 0)), False)
sketch2.addGeometry(Part.LineSegment(V(0, 0, 0), V(136.5, 0, 0)), False)
sketch2.addGeometry(Part.LineSegment(V(136.5, 0, 0), V(136.5, -4.8, 0)), False)
sketch2.addGeometry(Part.LineSegment(V(136.5, -4.8, 0), V(0, -4.8, 0)), False)
sketch2.addConstraint(Sketcher.Constraint("Coincident", 0, 2, 1, 1))
sketch2.addConstraint(Sketcher.Constraint("Coincident", 1, 2, 2, 1))
sketch2.addConstraint(Sketcher.Constraint("Coincident", 2, 2, 3, 1))
sketch2.addConstraint(Sketcher.Constraint("Coincident", 3, 2, 0, 1))
sketch2.addConstraint(Sketcher.Constraint("Vertical", 0))
sketch2.addConstraint(Sketcher.Constraint("Horizontal", 1))
sketch2.addConstraint(Sketcher.Constraint("Vertical", 2))
sketch2.addConstraint(Sketcher.Constraint("Horizontal", 3))
sketch2.addConstraint(Sketcher.Constraint("Coincident", 0, 2, -1, 1))
sketch2.addConstraint(Sketcher.Constraint("DistanceX", 1, 1, 1, 2, Q("5.375 in")))
sketch2.addConstraint(Sketcher.Constraint("DistanceY", 0, 1, 0, 2, Q("0.1875 in")))
sketch2.setExpression("Constraints[9]", "Params.sketch2_width")
sketch2.setExpression("Constraints[10]", "Params.sketch2_height")
pocket1 = body.newObject("PartDesign::Pocket", "Pocket")
pocket1.Profile = sketch2
pocket1.Type = "ThroughAll"
pocket1.Reversed = True

# Sketch on XZ plane
sketch3 = body.newObject("Sketcher::SketchObject", "Sketch002")
sketch3.AttachmentSupport = (doc.getObject("XZ_Plane"), [""])
sketch3.MapMode = "FlatFace"
sketch3.addGeometry(Part.LineSegment(V(3, -22, 0), V(3, -36, 0)), False)
sketch3.addGeometry(Part.LineSegment(V(3, -36, 0), V(135, -36, 0)), False)
sketch3.addGeometry(Part.LineSegment(V(135, -36, 0), V(135, -22, 0)), False)
sketch3.addGeometry(Part.LineSegment(V(135, -22, 0), V(3, -22, 0)), False)
sketch3.addConstraint(Sketcher.Constraint("Coincident", 0, 2, 1, 1))
sketch3.addConstraint(Sketcher.Constraint("Coincident", 1, 2, 2, 1))
sketch3.addConstraint(Sketcher.Constraint("Coincident", 2, 2, 3, 1))
sketch3.addConstraint(Sketcher.Constraint("Coincident", 3, 2, 0, 1))
sketch3.addConstraint(Sketcher.Constraint("Vertical", 0))
sketch3.addConstraint(Sketcher.Constraint("Horizontal", 1))
sketch3.addConstraint(Sketcher.Constraint("Vertical", 2))
sketch3.addConstraint(Sketcher.Constraint("Horizontal", 3))
sketch3.addConstraint(Sketcher.Constraint("DistanceY", 0, 2, 0, 1, Q("0.53 in")))
sketch3.addConstraint(Sketcher.Constraint("DistanceY", 0, 2, -1, 1, Q("1.405 in")))
sketch3.addConstraint(Sketcher.Constraint("DistanceX", 1, 1, 1, 2, Q("132.265961 mm")))
sketch3.addConstraint(Sketcher.Constraint("DistanceX", -1, 1, 0, 2, Q("3.15019 mm")))
sketch3.setExpression("Constraints[8]", "Params.sketch3_height")
pocket2 = body.newObject("PartDesign::Pocket", "Pocket001")
pocket2.Profile = sketch3
pocket2.Type = "ThroughAll"

# Sketch on XZ plane
sketch4 = body.newObject("Sketcher::SketchObject", "Sketch003")
sketch4.AttachmentSupport = (doc.getObject("XZ_Plane"), [""])
sketch4.MapMode = "FlatFace"
sketch4.AttachmentOffset = App.Placement(V(0, 0, -17 * 25.4), App.Rotation())
sketch4.addGeometry(Part.LineSegment(V(2, -24, 0), V(2, -10, 0)), False)
sketch4.addGeometry(Part.LineSegment(V(2, -10, 0), V(14, -10, 0)), False)
sketch4.addGeometry(Part.LineSegment(V(14, -10, 0), V(14, -24, 0)), False)
sketch4.addGeometry(Part.LineSegment(V(14, -24, 0), V(2, -24, 0)), False)
sketch4.addGeometry(Part.LineSegment(V(122, -24, 0), V(122, -10, 0)), False)
sketch4.addGeometry(Part.LineSegment(V(122, -10, 0), V(135, -10, 0)), False)
sketch4.addGeometry(Part.LineSegment(V(135, -10, 0), V(135, -24, 0)), False)
sketch4.addGeometry(Part.LineSegment(V(135, -24, 0), V(122, -24, 0)), False)
sketch4.addConstraint(Sketcher.Constraint("Coincident", 0, 2, 1, 1))
sketch4.addConstraint(Sketcher.Constraint("Coincident", 1, 2, 2, 1))
sketch4.addConstraint(Sketcher.Constraint("Coincident", 2, 2, 3, 1))
sketch4.addConstraint(Sketcher.Constraint("Coincident", 3, 2, 0, 1))
sketch4.addConstraint(Sketcher.Constraint("Coincident", 4, 2, 5, 1))
sketch4.addConstraint(Sketcher.Constraint("Coincident", 5, 2, 6, 1))
sketch4.addConstraint(Sketcher.Constraint("Coincident", 6, 2, 7, 1))
sketch4.addConstraint(Sketcher.Constraint("Coincident", 7, 2, 4, 1))
sketch4.addConstraint(Sketcher.Constraint("Vertical", 0))
sketch4.addConstraint(Sketcher.Constraint("Horizontal", 1))
sketch4.addConstraint(Sketcher.Constraint("Vertical", 2))
sketch4.addConstraint(Sketcher.Constraint("Horizontal", 3))
sketch4.addConstraint(Sketcher.Constraint("Vertical", 4))
sketch4.addConstraint(Sketcher.Constraint("Horizontal", 5))
sketch4.addConstraint(Sketcher.Constraint("Vertical", 6))
sketch4.addConstraint(Sketcher.Constraint("Horizontal", 7))
sketch4.addConstraint(Sketcher.Constraint("Horizontal", 1, 2, 4, 2))
sketch4.addConstraint(Sketcher.Constraint("DistanceX", 5, 1, 5, 2, Q("0.4835 in")))
sketch4.addConstraint(Sketcher.Constraint("DistanceX", -1, 1, 0, 2, Q("0.079 in")))
sketch4.addConstraint(Sketcher.Constraint("DistanceY", 0, 2, -1, 1, Q("0.375 in")))
sketch4.addConstraint(Sketcher.Constraint("DistanceX", -1, 1, 4, 2, Q("4.813 in")))
sketch4.addConstraint(Sketcher.Constraint("DistanceY", 4, 1, 4, 2, Q("14.91852 mm")))
sketch4.addConstraint(Sketcher.Constraint("DistanceX", 1, 1, 1, 2, Q("11.600567 mm")))
sketch4.addConstraint(Sketcher.Constraint("DistanceY", 0, 1, 0, 2, Q("14.103654 mm")))
pocket3 = body.newObject("PartDesign::Pocket", "Pocket002")
pocket3.Profile = sketch4
pocket3.Type = "ThroughAll"
pocket3.Reversed = True

# Sketch on XY plane
sketch5 = body.newObject("Sketcher::SketchObject", "Sketch004")
sketch5.AttachmentSupport = (doc.getObject("XY_Plane"), [""])
sketch5.MapMode = "FlatFace"
sketch5.AttachmentOffset = App.Placement(V(0, 0, -0.375 * 25.4), App.Rotation())
sketch5.addGeometry(Part.LineSegment(V(137, 17, 0), V(137, 0, 0)), False)
sketch5.addGeometry(Part.LineSegment(V(137, 0, 0), V(0, 0, 0)), False)
sketch5.addGeometry(Part.LineSegment(V(0, 0, 0), V(0, 17, 0)), False)
sketch5.addGeometry(Part.LineSegment(V(0, 17, 0), V(137, 17, 0)), False)
sketch5.addConstraint(Sketcher.Constraint("Coincident", 0, 2, 1, 1))
sketch5.addConstraint(Sketcher.Constraint("Coincident", 1, 2, 2, 1))
sketch5.addConstraint(Sketcher.Constraint("Coincident", 2, 2, 3, 1))
sketch5.addConstraint(Sketcher.Constraint("Coincident", 3, 2, 0, 1))
sketch5.addConstraint(Sketcher.Constraint("Vertical", 0))
sketch5.addConstraint(Sketcher.Constraint("Horizontal", 1))
sketch5.addConstraint(Sketcher.Constraint("Vertical", 2))
sketch5.addConstraint(Sketcher.Constraint("Horizontal", 3))
sketch5.addConstraint(Sketcher.Constraint("Coincident", 1, 2, -1, 1))
sketch5.addConstraint(Sketcher.Constraint("DistanceX", 1, 2, 1, 1, Q("5.375 in")))
sketch5.addConstraint(Sketcher.Constraint("DistanceY", 0, 2, 0, 1, Q("17.156 mm")))
sketch5.setExpression("Constraints[9]", "Params.sketch5_width")
pocket4 = body.newObject("PartDesign::Pocket", "Pocket003")
pocket4.Profile = sketch5
pocket4.Type = "ThroughAll"
pocket4.Midplane = True
doc.recompute()

fillet = body.newObject("PartDesign::Fillet", "Fillet")
fillet.Base = (pocket4, edges_at(pocket4, [
    (136.525, 431.8, -7.144),
    (0, 431.8, -7.144),
    (0, 17.156, -7.144),
    (136.525, 17.156, -7.144),
]))
fillet.setExpression("Radius", "Params.fillet_radius")

# Sketch on XY plane
sketch6 = body.newObject("Sketcher::SketchObject", "Sketch005")
sketch6.AttachmentSupport = (doc.getObject("XY_Plane"), [""])
sketch6.MapMode = "FlatFace"
sketch6.AttachmentOffset = App.Placement(V(0, 0, -0.1875 * 25.4), App.Rotation())
sketch6.addGeometry(Part.Circle(V(9.3, 31.3, 0), V(0, 0, 1), 3.3), False)
sketch6.addGeometry(Part.Circle(V(129.9, 31.3, 0), V(0, 0, 1), 3.3), False)
sketch6.addGeometry(Part.Circle(V(130.6, 110.6, 0), V(0, 0, 1), 3.3), False)
sketch6.addGeometry(Part.Circle(V(9.3, 100.7, 0), V(0, 0, 1), 3.3), False)
sketch6.addGeometry(Part.Circle(V(9.3, 179.9, 0), V(0, 0, 1), 3.3), False)
sketch6.addGeometry(Part.Circle(V(130.6, 189.8, 0), V(0, 0, 1), 3.3), False)
sketch6.addGeometry(Part.Circle(V(9.3, 259.1, 0), V(0, 0, 1), 3.3), False)
sketch6.addGeometry(Part.Circle(V(130.6, 269.1, 0), V(0, 0, 1), 3.3), False)
sketch6.addGeometry(Part.Circle(V(130.6, 348.3, 0), V(0, 0, 1), 3.3), False)
sketch6.addGeometry(Part.Circle(V(9.3, 338.4, 0), V(0, 0, 1), 3.3), False)
sketch6.addGeometry(Part.Circle(V(9.3, 417.6, 0), V(0, 0, 1), 3.3), False)
sketch6.addGeometry(Part.Circle(V(129.9, 417.6, 0), V(0, 0, 1), 3.3), False)
sketch6.addConstraint(Sketcher.Constraint("Equal", 0, 1))
sketch6.addConstraint(Sketcher.Constraint("Equal", 1, 2))
sketch6.addConstraint(Sketcher.Constraint("Equal", 2, 3))
sketch6.addConstraint(Sketcher.Constraint("Equal", 3, 4))
sketch6.addConstraint(Sketcher.Constraint("Equal", 4, 5))
sketch6.addConstraint(Sketcher.Constraint("Equal", 5, 6))
sketch6.addConstraint(Sketcher.Constraint("Equal", 6, 7))
sketch6.addConstraint(Sketcher.Constraint("Equal", 7, 8))
sketch6.addConstraint(Sketcher.Constraint("Equal", 8, 9))
sketch6.addConstraint(Sketcher.Constraint("Equal", 9, 10))
sketch6.addConstraint(Sketcher.Constraint("Equal", 10, 11))
sketch6.addConstraint(Sketcher.Constraint("Horizontal", 0, 3, 1, 3))
sketch6.addConstraint(Sketcher.Constraint("Horizontal", 10, 3, 11, 3))
sketch6.addConstraint(Sketcher.Constraint("Vertical", 0, 3, 3, 3))
sketch6.addConstraint(Sketcher.Constraint("Vertical", 3, 3, 4, 3))
sketch6.addConstraint(Sketcher.Constraint("Vertical", 2, 3, 5, 3))
sketch6.addConstraint(Sketcher.Constraint("Vertical", 4, 3, 6, 3))
sketch6.addConstraint(Sketcher.Constraint("Vertical", 5, 3, 7, 3))
sketch6.addConstraint(Sketcher.Constraint("Vertical", 7, 3, 8, 3))
sketch6.addConstraint(Sketcher.Constraint("Vertical", 6, 3, 9, 3))
sketch6.addConstraint(Sketcher.Constraint("Vertical", 9, 3, 10, 3))
sketch6.addConstraint(Sketcher.Constraint("Vertical", 1, 3, 11, 3))
sketch6.addConstraint(Sketcher.Constraint("Diameter", 0, Q("6.6 mm")))
sketch6.addConstraint(Sketcher.Constraint("DistanceY", 1, 3, 2, 3, Q("3.12 in")))
sketch6.addConstraint(Sketcher.Constraint("DistanceY", 0, 3, 3, 3, Q("2.73 in")))
sketch6.addConstraint(Sketcher.Constraint("DistanceY", 3, 3, 4, 3, Q("3.12 in")))
sketch6.addConstraint(Sketcher.Constraint("DistanceY", 2, 3, 5, 3, Q("3.12 in")))
sketch6.addConstraint(Sketcher.Constraint("DistanceY", 4, 3, 6, 3, Q("3.12 in")))
sketch6.addConstraint(Sketcher.Constraint("DistanceY", 5, 3, 7, 3, Q("3.12 in")))
sketch6.addConstraint(Sketcher.Constraint("DistanceY", 7, 3, 8, 3, Q("3.12 in")))
sketch6.addConstraint(Sketcher.Constraint("DistanceY", 6, 3, 9, 3, Q("3.12 in")))
sketch6.addConstraint(Sketcher.Constraint("DistanceY", 9, 3, 10, 3, Q("3.12 in")))
sketch6.addConstraint(Sketcher.Constraint("DistanceY", -1, 1, 0, 3, Q("31.311 mm")))
sketch6.addConstraint(Sketcher.Constraint("DistanceX", -1, 1, 0, 3, Q("9.324759 mm")))
sketch6.addConstraint(Sketcher.Constraint("DistanceX", 1, 3, 2, 3, Q("0.727971 mm")))
sketch6.addConstraint(Sketcher.Constraint("DistanceX", -1, 1, 1, 3, Q("129.902966 mm")))
doc.recompute()
hole = body.newObject("PartDesign::Hole", "Hole")
hole.Profile = sketch6
hole.ThreadType = "None"
hole.setExpression("Diameter", "Params.hole_diameter")
hole.DepthType = "ThroughAll"

doc.recompute()
